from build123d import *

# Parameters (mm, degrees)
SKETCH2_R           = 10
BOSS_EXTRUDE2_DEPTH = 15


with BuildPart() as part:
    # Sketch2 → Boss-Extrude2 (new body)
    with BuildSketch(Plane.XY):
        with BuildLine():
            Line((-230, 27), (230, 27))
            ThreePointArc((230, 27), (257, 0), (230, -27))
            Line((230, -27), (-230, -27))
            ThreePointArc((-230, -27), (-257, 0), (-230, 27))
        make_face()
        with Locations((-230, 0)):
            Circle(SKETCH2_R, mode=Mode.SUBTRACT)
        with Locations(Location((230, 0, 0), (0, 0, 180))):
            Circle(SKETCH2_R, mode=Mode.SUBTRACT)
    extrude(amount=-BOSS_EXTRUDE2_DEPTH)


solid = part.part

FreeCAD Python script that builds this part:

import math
import FreeCAD as App
import Part
import Sketcher

V = App.Vector

doc = App.newDocument("Part")
body = doc.addObject("PartDesign::Body", "Body")

sketch1 = body.newObject("Sketcher::SketchObject", "Sketch")
sketch1.AttachmentSupport = (doc.getObject("XY_Plane"), [""])
sketch1.MapMode = "FlatFace"
sketch1.addGeometry(Part.LineSegment(V(230, 27, 0), V(-230, 27, 0)), False)
sketch1.addGeometry(Part.ArcOfCircle(Part.Circle(V(-230, 0, 0), V(0, 0, 1), 27), math.radians(90), math.radians(270)), False)
sketch1.addGeometry(Part.LineSegment(V(-230, -27, 0), V(230, -27, 0)), False)
sketch1.addGeometry(Part.ArcOfCircle(Part.Circle(V(230, 0, 0), V(0, 0, 1), 27), math.radians(-90), math.radians(90)), False)
sketch1.addGeometry(Part.Circle(V(230, 0, 0), V(0, 0, 1), 10), False)
sketch1.addGeometry(Part.Circle(V(-230, 0, 0), V(0, 0, 1), 10), False)
sketch1.addConstraint(Sketcher.Constraint("Tangent", 0, 2, 1, 1))
sketch1.addConstraint(Sketcher.Constraint("Tangent", 1, 2, 2, 1))
sketch1.addConstraint(Sketcher.Constraint("Tangent", 2, 2, 3, 1))
sketch1.addConstraint(Sketcher.Constraint("Tangent", 3, 2, 0, 1))
sketch1.addConstraint(Sketcher.Constraint("Horizontal", 0))
sketch1.addConstraint(Sketcher.Constraint("Horizontal", 2))
sketch1.addConstraint(Sketcher.Constraint("Coincident", 4, 3, 3, 3))
sketch1.addConstraint(Sketcher.Constraint("Coincident", 5, 3, 1, 3))
sketch1.addConstraint(Sketcher.Constraint("Equal", 4, 5))
sketch1.addConstraint(Sketcher.Constraint("Symmetric", 1, 3, 3, 3, -1, 1))
sketch1.addConstraint(Sketcher.Constraint("Diameter", 4, 20.0))
sketch1.addConstraint(Sketcher.Constraint("Radius", 1, 27.0))
sketch1.addConstraint(Sketcher.Constraint("DistanceX", 0, 2, 0, 1, 460.0))
pad1 = body.newObject("PartDesign::Pad", "Pad")
pad1.Profile = sketch1
pad1.Length = 15
pad1.Reversed = True

doc.recompute()
